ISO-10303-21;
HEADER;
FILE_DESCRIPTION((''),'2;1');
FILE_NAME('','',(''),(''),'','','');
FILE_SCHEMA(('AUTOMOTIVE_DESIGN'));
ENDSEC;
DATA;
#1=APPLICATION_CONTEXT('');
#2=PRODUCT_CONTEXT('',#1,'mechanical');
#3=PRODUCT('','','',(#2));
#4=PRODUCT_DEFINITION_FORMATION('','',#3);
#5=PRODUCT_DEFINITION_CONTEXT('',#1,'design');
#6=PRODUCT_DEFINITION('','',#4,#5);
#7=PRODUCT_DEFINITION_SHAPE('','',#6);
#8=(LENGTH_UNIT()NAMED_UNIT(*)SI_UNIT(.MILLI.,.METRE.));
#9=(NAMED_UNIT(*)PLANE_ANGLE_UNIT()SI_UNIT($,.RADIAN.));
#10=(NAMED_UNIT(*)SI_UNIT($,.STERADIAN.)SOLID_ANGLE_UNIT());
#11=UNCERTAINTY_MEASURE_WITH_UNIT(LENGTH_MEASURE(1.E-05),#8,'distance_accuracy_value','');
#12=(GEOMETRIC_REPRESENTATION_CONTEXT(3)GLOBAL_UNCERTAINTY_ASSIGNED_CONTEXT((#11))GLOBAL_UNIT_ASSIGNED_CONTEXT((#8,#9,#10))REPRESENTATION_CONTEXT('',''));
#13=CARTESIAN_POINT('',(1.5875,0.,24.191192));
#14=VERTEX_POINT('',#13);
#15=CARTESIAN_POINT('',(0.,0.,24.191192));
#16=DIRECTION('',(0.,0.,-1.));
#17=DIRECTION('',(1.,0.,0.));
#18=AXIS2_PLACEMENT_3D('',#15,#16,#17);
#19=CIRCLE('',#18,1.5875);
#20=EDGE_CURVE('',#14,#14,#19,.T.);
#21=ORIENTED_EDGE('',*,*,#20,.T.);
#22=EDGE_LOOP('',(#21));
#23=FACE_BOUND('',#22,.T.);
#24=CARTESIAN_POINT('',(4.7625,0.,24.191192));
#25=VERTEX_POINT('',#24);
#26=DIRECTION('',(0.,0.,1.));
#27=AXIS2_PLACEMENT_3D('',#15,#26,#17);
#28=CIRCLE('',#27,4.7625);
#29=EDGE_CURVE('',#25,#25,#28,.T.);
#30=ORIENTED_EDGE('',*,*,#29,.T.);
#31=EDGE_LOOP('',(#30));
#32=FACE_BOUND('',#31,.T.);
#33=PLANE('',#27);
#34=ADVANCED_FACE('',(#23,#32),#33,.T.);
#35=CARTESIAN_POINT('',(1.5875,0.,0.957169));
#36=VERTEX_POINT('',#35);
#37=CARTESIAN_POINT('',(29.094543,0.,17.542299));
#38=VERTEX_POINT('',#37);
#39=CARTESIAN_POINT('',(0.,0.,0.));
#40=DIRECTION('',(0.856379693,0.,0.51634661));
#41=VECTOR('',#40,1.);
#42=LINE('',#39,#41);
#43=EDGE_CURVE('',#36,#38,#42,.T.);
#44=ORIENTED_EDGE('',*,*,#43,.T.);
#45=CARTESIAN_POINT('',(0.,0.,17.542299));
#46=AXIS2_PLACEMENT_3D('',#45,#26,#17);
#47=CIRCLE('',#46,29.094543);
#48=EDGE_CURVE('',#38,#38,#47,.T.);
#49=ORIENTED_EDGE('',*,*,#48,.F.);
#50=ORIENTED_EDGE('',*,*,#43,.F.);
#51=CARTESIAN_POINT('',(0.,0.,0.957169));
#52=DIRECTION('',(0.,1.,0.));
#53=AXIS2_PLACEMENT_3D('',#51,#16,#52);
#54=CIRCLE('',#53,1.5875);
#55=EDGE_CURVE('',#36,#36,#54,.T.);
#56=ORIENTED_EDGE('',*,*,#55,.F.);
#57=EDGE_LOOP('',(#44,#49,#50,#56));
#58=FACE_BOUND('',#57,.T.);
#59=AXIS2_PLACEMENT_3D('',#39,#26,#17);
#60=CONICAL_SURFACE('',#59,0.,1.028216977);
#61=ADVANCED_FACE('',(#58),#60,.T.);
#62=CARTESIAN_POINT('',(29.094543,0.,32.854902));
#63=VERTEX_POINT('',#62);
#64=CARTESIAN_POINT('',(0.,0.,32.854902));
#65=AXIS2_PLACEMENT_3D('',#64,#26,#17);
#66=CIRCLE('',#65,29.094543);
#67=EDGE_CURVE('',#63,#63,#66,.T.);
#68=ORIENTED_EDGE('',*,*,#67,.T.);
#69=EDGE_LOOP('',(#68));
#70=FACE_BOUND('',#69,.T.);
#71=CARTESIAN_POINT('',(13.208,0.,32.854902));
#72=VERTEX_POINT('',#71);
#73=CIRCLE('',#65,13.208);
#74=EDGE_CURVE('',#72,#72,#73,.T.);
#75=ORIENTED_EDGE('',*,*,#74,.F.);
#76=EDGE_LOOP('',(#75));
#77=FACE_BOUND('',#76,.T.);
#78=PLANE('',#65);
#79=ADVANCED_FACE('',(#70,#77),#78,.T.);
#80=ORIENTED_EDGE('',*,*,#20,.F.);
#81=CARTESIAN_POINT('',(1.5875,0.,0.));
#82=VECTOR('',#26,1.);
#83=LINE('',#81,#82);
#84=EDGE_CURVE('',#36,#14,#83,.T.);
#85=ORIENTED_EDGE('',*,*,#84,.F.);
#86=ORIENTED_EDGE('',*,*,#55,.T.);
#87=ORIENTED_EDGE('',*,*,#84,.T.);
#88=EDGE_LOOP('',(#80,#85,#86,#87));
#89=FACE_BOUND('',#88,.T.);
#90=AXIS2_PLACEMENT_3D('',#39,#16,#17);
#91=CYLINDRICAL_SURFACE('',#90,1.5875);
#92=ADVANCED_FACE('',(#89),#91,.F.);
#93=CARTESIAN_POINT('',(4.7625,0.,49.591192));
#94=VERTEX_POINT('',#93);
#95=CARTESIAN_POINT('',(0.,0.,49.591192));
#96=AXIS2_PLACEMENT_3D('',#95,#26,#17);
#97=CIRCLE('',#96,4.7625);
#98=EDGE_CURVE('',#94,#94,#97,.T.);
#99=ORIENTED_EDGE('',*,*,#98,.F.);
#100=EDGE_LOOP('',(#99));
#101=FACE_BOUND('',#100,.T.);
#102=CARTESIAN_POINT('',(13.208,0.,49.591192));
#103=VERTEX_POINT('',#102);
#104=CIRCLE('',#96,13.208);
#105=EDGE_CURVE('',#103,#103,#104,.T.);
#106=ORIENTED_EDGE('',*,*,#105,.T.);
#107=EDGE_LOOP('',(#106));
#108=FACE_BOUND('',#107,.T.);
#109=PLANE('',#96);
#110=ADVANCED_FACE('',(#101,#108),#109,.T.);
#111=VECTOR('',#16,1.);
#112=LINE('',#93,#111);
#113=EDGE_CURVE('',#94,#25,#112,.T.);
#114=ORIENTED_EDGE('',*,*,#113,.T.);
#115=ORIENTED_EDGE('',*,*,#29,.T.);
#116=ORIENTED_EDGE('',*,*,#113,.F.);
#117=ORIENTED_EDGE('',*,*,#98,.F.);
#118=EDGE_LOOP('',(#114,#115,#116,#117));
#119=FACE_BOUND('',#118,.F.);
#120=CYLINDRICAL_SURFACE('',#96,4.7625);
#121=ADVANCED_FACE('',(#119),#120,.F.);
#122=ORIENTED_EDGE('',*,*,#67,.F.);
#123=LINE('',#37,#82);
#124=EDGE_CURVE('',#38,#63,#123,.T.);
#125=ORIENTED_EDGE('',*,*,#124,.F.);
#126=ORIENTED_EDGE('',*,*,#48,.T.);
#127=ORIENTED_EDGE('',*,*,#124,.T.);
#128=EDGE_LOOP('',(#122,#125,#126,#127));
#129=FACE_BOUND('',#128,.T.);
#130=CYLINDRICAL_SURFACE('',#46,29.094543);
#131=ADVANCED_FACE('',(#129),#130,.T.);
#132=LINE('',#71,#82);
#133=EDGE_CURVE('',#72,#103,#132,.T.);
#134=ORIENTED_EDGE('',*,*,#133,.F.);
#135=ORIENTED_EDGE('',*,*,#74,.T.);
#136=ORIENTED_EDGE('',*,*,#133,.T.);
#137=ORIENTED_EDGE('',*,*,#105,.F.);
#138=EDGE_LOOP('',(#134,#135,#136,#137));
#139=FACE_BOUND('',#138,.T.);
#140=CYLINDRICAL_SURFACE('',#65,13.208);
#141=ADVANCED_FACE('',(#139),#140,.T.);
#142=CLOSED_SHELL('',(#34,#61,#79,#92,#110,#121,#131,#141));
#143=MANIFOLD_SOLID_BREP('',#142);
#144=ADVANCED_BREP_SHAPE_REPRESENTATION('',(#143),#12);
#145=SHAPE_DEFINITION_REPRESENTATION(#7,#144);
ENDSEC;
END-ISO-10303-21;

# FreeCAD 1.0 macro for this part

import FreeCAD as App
import Part
import Sketcher

V = App.Vector
Q = App.Units.Quantity


def add_polygon(sketch, points):
    """Adds a closed chain of lines whose ends are joined by coincident constraints."""
    first, n = sketch.GeometryCount, len(points)
    for a, b in zip(points, points[1:] + points[:1]):
        sketch.addGeometry(Part.LineSegment(App.Vector(*a, 0), App.Vector(*b, 0)), False)
    for i in range(n):
        sketch.addConstraint(Sketcher.Constraint("Coincident", first + i, 2, first + (i + 1) % n, 1))

doc = App.newDocument("Part")
body = doc.addObject("PartDesign::Body", "Body")

# Sketch on XZ plane
sketch1 = doc.addObject("Sketcher::SketchObject", "Sketch")
body.addObject(sketch1)
sketch1.AttachmentSupport = (doc.XZ_Plane, [""])
sketch1.MapMode = "FlatFace"
add_polygon(sketch1, [(0, 49.591192), (0, 0), (29.094543, 17.542299), (29.094543, 32.854902), (13.208, 32.854902), (13.208, 49.591192)])  # lines 0-5
sketch1.addConstraint(Sketcher.Constraint("Vertical", 0))
sketch1.addConstraint(Sketcher.Constraint("Vertical", 2))
sketch1.addConstraint(Sketcher.Constraint("Horizontal", 3))
sketch1.addConstraint(Sketcher.Constraint("Vertical", 4))
sketch1.addConstraint(Sketcher.Constraint("Horizontal", 5))
sketch1.addConstraint(Sketcher.Constraint("Coincident", 0, 2, -1, 1))
sketch1.addConstraint(Sketcher.Constraint("DistanceX", 5, 2, 5, 1, Q("0.52 in")))
sketch1.addConstraint(Sketcher.Constraint("DistanceY", -1, 1, 2, 2, Q("1.2935001 in")))
sketch1.addConstraint(Sketcher.Constraint("DistanceY", 4, 1, 4, 2, 16.73629))
sketch1.addConstraint(Sketcher.Constraint("DistanceY", -1, 1, 1, 2, 17.542299))
sketch1.addConstraint(Sketcher.Constraint("DistanceX", 3, 2, 3, 1, 15.886543))
revolution = doc.addObject("PartDesign::Revolution", "Revolution")
body.addObject(revolution)
revolution.Profile = sketch1
revolution.ReferenceAxis = (sketch1, ["V_Axis"])
revolution.Angle = 360

# Sketch on XY plane
sketch2 = doc.addObject("Sketcher::SketchObject", "Sketch001")
body.addObject(sketch2)
sketch2.AttachmentSupport = (doc.XY_Plane, [""])
sketch2.MapMode = "FlatFace"
sketch2.AttachmentOffset = App.Placement(V(0, 0, 49.591192), App.Rotation())
sketch2.addGeometry(Part.Circle(V(0, 0, 0), V(0, 0, 1), 4.7625), False)
sketch2.addConstraint(Sketcher.Constraint("Coincident", 0, 3, -1, 1))
sketch2.addConstraint(Sketcher.Constraint("Diameter", 0, Q("0.375 in")))
pocket1 = doc.addObject("PartDesign::Pocket", "Pocket")
body.addObject(pocket1)
pocket1.Profile = sketch2
pocket1.Length = Q("1 in")

# Sketch on XY plane
sketch3 = doc.addObject("Sketcher::SketchObject", "Sketch002")
body.addObject(sketch3)
sketch3.AttachmentSupport = (doc.XY_Plane, [""])
sketch3.MapMode = "FlatFace"
sketch3.addGeometry(Part.Circle(V(0, 0, 0), V(0, 0, 1), 1.5875), False)
sketch3.addConstraint(Sketcher.Constraint("Coincident", 0, 3, -1, 1))
sketch3.addConstraint(Sketcher.Constraint("Diameter", 0, Q("0.125 in")))
pocket2 = doc.addObject("PartDesign::Pocket", "Pocket001")
body.addObject(pocket2)
pocket2.Profile = sketch3
pocket2.Length = Q("1 in")
pocket2.Reversed = True

doc.recompute()
